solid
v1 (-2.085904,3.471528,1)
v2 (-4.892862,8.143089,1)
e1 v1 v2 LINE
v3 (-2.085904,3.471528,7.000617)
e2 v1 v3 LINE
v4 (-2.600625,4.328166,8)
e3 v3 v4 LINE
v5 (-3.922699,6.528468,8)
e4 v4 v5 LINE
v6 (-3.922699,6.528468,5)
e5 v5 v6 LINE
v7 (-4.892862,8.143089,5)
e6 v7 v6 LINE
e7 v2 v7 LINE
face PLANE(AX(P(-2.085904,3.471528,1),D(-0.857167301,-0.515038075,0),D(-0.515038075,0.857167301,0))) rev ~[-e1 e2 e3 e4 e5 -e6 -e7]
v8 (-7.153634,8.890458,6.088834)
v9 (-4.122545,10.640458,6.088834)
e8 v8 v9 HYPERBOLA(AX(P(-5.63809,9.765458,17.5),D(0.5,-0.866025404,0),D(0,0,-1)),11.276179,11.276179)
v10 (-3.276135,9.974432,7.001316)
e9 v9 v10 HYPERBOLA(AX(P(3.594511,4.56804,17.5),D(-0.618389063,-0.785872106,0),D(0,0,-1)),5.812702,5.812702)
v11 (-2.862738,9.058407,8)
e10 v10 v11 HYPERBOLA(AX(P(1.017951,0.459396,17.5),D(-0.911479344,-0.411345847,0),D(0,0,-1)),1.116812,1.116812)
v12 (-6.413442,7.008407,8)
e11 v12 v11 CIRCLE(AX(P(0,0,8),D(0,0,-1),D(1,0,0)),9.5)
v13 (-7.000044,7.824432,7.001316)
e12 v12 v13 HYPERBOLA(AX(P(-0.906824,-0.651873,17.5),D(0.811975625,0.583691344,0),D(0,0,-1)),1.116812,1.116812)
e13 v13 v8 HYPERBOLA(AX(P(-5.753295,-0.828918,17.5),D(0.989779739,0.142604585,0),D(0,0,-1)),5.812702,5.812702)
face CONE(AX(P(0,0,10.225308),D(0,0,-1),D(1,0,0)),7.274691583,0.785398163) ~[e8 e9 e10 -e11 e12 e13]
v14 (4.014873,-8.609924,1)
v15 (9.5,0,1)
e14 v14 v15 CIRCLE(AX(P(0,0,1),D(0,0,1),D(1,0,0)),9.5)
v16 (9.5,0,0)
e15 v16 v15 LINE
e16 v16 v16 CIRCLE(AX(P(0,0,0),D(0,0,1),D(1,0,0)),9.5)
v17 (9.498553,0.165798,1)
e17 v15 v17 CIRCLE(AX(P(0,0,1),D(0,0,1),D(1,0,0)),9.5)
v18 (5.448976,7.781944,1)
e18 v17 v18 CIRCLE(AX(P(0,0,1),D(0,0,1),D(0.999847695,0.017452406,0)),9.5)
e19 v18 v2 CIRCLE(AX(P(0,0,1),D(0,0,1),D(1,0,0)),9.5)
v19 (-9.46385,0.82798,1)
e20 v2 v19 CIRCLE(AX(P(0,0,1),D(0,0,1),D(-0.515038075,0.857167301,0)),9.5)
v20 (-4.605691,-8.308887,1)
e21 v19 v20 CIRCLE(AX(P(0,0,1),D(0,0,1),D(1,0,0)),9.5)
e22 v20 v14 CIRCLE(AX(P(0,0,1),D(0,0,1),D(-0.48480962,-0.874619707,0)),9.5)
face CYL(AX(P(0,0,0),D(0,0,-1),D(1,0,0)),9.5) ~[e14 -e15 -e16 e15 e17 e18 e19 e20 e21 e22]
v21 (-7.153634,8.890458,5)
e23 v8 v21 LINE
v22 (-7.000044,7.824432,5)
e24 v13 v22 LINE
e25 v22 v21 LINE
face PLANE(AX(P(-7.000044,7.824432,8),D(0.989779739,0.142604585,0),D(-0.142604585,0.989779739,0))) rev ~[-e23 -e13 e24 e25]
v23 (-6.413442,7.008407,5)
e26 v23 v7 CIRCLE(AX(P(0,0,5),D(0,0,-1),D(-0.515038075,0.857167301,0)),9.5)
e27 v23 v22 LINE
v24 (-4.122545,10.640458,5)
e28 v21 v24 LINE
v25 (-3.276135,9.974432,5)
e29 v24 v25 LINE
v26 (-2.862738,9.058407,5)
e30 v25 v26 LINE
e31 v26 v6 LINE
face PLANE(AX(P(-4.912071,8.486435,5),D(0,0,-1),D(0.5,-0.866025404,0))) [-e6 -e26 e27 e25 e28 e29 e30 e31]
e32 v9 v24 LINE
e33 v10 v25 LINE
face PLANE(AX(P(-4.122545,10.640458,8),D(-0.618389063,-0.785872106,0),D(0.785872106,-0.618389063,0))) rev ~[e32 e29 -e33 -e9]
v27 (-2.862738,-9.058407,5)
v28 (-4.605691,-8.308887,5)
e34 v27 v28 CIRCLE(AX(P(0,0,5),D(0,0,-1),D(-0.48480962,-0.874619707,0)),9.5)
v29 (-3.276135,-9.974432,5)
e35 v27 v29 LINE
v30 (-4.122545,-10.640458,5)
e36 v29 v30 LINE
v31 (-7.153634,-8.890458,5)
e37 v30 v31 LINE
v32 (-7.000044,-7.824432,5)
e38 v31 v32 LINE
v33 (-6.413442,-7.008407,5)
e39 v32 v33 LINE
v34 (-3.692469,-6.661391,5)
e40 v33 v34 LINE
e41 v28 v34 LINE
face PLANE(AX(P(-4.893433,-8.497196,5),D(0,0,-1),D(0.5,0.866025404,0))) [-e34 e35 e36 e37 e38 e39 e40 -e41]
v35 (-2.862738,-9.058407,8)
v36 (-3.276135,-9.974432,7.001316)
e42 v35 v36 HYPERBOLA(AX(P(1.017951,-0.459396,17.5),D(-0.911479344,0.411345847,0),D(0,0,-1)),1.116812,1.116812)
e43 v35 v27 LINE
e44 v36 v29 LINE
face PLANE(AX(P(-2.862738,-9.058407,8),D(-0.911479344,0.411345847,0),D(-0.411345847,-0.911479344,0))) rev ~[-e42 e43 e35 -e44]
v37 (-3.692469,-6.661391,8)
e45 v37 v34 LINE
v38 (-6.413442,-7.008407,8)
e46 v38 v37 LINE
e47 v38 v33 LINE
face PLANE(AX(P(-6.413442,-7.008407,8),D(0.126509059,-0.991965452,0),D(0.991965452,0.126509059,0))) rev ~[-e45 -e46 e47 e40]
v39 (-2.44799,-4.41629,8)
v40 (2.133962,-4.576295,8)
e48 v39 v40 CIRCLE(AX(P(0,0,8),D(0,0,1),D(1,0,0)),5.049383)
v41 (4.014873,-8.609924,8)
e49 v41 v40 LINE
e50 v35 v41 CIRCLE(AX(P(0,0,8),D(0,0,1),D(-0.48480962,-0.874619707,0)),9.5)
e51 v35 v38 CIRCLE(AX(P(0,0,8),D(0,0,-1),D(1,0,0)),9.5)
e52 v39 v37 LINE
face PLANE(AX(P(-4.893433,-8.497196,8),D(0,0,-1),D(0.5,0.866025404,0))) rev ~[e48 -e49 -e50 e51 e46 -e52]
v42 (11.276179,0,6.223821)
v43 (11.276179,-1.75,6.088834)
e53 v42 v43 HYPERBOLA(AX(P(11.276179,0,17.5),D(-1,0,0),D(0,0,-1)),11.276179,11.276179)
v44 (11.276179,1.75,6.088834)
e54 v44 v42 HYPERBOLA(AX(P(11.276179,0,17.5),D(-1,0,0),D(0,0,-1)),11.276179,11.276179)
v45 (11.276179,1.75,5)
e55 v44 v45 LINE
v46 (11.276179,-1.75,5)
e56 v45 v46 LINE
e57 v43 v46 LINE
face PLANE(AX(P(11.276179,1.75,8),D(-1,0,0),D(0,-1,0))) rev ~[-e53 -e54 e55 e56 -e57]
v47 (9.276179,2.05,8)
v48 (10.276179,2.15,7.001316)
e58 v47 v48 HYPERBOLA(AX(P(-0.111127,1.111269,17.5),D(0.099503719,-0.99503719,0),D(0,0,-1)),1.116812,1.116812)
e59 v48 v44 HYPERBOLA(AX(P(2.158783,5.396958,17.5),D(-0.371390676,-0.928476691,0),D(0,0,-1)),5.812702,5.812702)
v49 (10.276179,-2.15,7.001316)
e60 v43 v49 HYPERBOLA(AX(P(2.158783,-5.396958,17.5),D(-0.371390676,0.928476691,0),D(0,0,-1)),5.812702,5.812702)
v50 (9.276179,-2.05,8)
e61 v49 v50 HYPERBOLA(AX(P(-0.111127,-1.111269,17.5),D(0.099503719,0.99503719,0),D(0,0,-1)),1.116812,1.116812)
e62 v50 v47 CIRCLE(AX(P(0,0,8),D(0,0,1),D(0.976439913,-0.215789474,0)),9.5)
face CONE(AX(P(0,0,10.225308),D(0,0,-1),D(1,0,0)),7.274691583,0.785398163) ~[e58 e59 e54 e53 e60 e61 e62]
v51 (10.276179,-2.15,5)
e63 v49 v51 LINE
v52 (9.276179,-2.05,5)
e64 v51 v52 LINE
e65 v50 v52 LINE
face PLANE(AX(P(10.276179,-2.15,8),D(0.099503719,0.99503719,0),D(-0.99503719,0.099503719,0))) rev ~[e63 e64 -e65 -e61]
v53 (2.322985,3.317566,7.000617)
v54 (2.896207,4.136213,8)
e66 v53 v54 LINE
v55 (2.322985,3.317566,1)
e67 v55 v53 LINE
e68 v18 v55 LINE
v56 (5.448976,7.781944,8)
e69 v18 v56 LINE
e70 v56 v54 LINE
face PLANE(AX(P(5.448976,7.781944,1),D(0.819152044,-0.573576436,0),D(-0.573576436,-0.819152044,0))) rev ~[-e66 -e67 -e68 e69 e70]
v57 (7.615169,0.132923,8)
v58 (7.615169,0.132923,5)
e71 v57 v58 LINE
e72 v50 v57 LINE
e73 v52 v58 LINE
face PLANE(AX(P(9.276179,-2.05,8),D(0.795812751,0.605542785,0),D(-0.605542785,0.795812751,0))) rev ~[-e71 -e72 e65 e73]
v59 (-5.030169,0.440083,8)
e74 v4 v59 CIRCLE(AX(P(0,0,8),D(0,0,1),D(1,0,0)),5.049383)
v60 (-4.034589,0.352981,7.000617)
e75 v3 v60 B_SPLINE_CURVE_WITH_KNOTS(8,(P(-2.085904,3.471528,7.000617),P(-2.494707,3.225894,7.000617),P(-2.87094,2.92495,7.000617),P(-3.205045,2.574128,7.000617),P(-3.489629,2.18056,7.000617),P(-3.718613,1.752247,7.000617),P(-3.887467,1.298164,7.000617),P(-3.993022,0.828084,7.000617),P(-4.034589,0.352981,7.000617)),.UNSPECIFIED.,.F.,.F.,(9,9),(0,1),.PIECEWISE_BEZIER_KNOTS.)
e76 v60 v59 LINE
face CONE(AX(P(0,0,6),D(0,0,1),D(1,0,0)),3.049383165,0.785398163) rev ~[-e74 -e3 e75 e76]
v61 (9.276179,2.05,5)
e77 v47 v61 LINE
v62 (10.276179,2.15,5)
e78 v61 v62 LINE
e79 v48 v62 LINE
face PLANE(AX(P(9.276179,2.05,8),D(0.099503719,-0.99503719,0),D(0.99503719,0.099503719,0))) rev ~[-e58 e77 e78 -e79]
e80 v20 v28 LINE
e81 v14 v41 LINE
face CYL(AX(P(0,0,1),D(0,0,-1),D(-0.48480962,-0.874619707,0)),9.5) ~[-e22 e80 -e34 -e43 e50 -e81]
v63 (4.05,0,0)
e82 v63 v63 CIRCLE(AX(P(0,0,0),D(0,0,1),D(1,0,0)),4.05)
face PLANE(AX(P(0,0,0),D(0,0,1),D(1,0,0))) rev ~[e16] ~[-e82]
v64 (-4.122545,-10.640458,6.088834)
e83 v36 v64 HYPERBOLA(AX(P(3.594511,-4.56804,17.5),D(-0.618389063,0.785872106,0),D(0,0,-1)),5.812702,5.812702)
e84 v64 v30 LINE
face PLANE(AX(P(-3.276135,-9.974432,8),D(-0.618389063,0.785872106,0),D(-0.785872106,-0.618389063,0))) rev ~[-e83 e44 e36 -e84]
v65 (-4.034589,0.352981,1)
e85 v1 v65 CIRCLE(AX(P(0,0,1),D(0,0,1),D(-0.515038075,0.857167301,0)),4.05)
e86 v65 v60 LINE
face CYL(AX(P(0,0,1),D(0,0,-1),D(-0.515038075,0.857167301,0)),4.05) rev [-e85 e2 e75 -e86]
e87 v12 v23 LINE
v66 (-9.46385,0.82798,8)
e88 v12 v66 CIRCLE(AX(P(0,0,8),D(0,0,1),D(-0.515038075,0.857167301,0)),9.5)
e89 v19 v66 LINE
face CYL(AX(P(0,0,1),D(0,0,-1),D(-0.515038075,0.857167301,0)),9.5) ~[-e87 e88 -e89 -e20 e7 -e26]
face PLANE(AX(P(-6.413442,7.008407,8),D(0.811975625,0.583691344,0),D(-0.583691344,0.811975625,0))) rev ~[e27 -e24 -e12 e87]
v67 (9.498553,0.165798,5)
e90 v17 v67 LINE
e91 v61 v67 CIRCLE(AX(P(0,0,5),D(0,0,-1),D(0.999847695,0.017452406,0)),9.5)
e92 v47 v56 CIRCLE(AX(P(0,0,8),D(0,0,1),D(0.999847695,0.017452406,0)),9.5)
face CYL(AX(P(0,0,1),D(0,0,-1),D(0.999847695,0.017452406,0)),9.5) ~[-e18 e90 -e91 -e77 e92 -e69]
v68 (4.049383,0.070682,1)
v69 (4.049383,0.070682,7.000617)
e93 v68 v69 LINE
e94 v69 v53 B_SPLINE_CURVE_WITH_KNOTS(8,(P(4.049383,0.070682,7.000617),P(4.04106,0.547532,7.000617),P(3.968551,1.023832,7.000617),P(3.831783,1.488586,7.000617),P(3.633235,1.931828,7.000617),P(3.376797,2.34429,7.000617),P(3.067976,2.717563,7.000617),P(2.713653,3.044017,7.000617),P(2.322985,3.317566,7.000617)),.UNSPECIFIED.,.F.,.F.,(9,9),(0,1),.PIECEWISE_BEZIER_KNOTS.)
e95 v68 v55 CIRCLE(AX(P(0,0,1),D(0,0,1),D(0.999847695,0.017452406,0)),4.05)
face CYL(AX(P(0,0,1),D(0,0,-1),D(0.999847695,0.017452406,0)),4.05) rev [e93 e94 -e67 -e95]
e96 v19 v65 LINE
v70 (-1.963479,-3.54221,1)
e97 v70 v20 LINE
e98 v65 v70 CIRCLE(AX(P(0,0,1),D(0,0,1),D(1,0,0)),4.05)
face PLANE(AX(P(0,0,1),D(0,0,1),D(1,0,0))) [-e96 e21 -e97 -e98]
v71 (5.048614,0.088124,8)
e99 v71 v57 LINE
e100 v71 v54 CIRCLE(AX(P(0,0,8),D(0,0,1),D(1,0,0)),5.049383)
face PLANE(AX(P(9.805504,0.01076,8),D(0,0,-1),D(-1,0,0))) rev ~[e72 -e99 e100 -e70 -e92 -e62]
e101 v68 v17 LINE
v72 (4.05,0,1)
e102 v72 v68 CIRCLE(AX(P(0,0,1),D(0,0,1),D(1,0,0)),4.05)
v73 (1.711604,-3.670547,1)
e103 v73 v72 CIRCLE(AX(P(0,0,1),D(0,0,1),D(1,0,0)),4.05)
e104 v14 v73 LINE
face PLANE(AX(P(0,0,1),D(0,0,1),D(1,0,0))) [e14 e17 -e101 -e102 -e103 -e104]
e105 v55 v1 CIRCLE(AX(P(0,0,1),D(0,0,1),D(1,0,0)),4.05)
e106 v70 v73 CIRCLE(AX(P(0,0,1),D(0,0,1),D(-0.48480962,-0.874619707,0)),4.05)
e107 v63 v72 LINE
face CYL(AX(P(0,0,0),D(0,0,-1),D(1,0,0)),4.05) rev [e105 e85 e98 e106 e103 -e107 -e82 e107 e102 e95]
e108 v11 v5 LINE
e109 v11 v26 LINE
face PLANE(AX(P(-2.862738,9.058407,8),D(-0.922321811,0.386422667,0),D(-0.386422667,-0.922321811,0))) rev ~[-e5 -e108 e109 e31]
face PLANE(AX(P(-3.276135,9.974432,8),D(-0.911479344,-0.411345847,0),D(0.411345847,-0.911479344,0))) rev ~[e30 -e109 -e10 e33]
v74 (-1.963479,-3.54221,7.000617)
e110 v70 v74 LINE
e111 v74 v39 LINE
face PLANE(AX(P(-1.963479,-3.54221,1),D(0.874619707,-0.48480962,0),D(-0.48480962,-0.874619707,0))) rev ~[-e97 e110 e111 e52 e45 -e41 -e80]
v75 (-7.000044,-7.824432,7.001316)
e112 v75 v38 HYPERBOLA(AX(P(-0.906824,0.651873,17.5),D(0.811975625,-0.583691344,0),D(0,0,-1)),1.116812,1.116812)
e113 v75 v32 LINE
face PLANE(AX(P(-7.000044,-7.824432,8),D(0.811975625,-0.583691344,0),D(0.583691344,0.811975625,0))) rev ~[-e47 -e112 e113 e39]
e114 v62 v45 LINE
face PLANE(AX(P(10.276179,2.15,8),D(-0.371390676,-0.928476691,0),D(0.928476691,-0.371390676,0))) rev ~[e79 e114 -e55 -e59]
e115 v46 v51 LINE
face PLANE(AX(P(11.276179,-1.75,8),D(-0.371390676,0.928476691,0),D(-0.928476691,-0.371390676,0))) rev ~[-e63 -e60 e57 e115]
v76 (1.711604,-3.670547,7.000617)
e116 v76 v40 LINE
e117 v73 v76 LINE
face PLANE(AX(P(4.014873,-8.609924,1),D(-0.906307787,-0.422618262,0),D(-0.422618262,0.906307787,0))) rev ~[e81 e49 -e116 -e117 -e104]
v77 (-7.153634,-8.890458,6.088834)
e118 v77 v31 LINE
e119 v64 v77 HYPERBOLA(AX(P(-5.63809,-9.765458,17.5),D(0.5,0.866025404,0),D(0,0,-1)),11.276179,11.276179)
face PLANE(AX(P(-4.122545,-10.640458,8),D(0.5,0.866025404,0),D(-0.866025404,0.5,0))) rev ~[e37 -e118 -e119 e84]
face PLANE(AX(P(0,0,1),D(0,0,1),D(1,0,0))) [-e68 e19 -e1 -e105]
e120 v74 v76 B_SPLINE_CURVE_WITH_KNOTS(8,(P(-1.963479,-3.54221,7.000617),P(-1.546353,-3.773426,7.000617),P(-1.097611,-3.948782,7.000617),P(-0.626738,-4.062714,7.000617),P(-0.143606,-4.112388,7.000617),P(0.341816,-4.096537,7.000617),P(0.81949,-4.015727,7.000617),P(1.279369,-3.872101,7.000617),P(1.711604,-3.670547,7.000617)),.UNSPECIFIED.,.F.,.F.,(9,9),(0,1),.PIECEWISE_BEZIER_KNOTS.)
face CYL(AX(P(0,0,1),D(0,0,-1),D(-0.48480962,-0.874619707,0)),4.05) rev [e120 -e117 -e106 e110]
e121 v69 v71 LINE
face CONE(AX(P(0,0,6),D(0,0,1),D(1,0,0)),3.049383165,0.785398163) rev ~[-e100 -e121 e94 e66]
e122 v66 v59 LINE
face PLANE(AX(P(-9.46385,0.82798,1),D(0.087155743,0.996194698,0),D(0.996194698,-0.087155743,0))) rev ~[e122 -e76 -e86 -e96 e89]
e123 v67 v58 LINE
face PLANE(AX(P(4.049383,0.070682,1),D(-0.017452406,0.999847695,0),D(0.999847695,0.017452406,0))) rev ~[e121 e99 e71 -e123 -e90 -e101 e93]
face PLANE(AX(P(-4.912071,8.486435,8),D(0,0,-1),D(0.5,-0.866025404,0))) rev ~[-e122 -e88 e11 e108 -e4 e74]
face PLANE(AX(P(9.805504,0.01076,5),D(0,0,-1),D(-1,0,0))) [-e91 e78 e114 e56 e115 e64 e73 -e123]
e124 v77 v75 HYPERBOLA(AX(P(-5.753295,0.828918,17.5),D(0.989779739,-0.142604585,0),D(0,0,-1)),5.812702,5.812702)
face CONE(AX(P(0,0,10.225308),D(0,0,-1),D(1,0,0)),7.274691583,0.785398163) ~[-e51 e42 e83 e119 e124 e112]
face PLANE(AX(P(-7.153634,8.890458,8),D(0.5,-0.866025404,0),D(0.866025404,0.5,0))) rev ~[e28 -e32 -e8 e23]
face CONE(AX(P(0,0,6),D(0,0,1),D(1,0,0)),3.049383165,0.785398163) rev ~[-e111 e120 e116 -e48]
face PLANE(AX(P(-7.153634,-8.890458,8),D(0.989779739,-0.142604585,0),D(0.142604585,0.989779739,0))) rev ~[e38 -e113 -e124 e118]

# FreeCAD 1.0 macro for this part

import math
import FreeCAD as App
import Part
import Sketcher

V = App.Vector
Q = App.Units.Quantity


def add_polygon(sketch, points):
    """Adds a closed chain of lines whose ends are joined by coincident constraints."""
    first, n = sketch.GeometryCount, len(points)
    for a, b in zip(points, points[1:] + points[:1]):
        sketch.addGeometry(Part.LineSegment(App.Vector(*a, 0), App.Vector(*b, 0)), False)
    for i in range(n):
        sketch.addConstraint(Sketcher.Constraint("Coincident", first + i, 2, first + (i + 1) % n, 1))

doc = App.newDocument("Part")
params = doc.addObject("Spreadsheet::Sheet", "Params")
for row, (alias, value) in enumerate([
    ("sketch1_diameter", "19 mm"),
    ("sketch1_diameter2", "8.1 mm"),
    ("pad1_length", "1 mm"),
    ("sketch2_radius", "9.5 mm"),
    ("sketch2_radius2", "4.05 mm"),
    ("pad2_length", "7 mm"),
    ("sketch3_height", "3.5 mm"),
    ("pad3_length", "3 mm"),
    ("groove_angle", "360 deg"),
], start=1):
    params.set(f"A{row}", alias)
    params.set(f"B{row}", "=" + value)
    params.setAlias(f"B{row}", alias)

body = doc.addObject("PartDesign::Body", "Body")

sketch1 = body.newObject("Sketcher::SketchObject", "Sketch")
sketch1.AttachmentSupport = (doc.getObject("XY_Plane"), [""])
sketch1.MapMode = "FlatFace"
sketch1.addGeometry(Part.Circle(V(0, 0, 0), V(0, 0, 1), 9.5), False)
sketch1.addGeometry(Part.Circle(V(0, 0, 0), V(0, 0, 1), 4), False)
sketch1.addConstraint(Sketcher.Constraint("Coincident", 0, 3, -1, 1))
sketch1.addConstraint(Sketcher.Constraint("Coincident", 1, 3, -1, 1))
sketch1.addConstraint(Sketcher.Constraint("Diameter", 0, Q("19 mm")))
sketch1.addConstraint(Sketcher.Constraint("Diameter", 1, Q("8.1 mm")))
sketch1.setExpression("Constraints[2]", "Params.sketch1_diameter")
sketch1.setExpression("Constraints[3]", "Params.sketch1_diameter2")
pad1 = body.newObject("PartDesign::Pad", "Pad")
pad1.Profile = sketch1
pad1.setExpression("Length", "Params.pad1_length")

sketch2 = body.newObject("Sketcher::SketchObject", "Sketch001")
sketch2.AttachmentSupport = (doc.getObject("XY_Plane"), [""])
sketch2.MapMode = "FlatFace"
sketch2.AttachmentOffset = App.Placement(V(0, 0, 1), App.Rotation())
sketch2.addGeometry(Part.ArcOfCircle(Part.Circle(V(0, 0, 0), V(0, 0, 1), 4), math.radians(1), math.radians(55)), False)
sketch2.addGeometry(Part.LineSegment(V(4, 0.1, 0), V(9.5, 0.2, 0)), False)
sketch2.addGeometry(Part.ArcOfCircle(Part.Circle(V(0, 0, 0), V(0, 0, 1), 9.5), math.radians(1), math.radians(55)), False)
sketch2.addGeometry(Part.LineSegment(V(5.4, 7.8, 0), V(2.3, 3.3, 0)), False)
sketch2.addConstraint(Sketcher.Constraint("Coincident", 0, 1, 1, 1))
sketch2.addConstraint(Sketcher.Constraint("Coincident", 1, 2, 2, 1))
sketch2.addConstraint(Sketcher.Constraint("Coincident", 2, 2, 3, 1))
sketch2.addConstraint(Sketcher.Constraint("Coincident", 3, 2, 0, 2))
sketch2.addConstraint(Sketcher.Constraint("Coincident", 0, 3, -1, 1))
sketch2.addConstraint(Sketcher.Constraint("Coincident", 2, 3, -1, 1))
sketch2.addConstraint(Sketcher.Constraint("Radius", 2, Q("9.5 mm")))
sketch2.addConstraint(Sketcher.Constraint("Angle", 1, Q("1 deg")))
sketch2.addConstraint(Sketcher.Constraint("Angle", 3, Q("-125 deg")))
sketch2.addConstraint(Sketcher.Constraint("Radius", 0, Q("4.05 mm")))
sketch2.addConstraint(Sketcher.Constraint("DistanceX", 3, 2, 0, 1, Q("1.726399 mm")))
sketch2.addConstraint(Sketcher.Constraint("DistanceX", -1, 1, 0, 1, Q("4.049383 mm")))
sketch2.setExpression("Constraints[6]", "Params.sketch2_radius")
sketch2.setExpression("Constraints[9]", "Params.sketch2_radius2")
pad2 = body.newObject("PartDesign::Pad", "Pad001")
pad2.Profile = sketch2
pad2.setExpression("Length", "Params.pad2_length")

sketch3 = body.newObject("Sketcher::SketchObject", "Sketch002")
sketch3.AttachmentSupport = (doc.getObject("XY_Plane"), [""])
sketch3.MapMode = "FlatFace"
sketch3.AttachmentOffset = App.Placement(V(0, 0, 8), App.Rotation())
add_polygon(sketch3, [(10.3, 2.1), (9.3, 2), (7.6, 0.1), (9.3, -2), (10.3, -2.1), (11.3, -1.8), (11.3, 1.8)])
sketch3.addConstraint(Sketcher.Constraint("Vertical", 5))
sketch3.addConstraint(Sketcher.Constraint("Symmetric", 0, 2, 2, 2, -1))
sketch3.addConstraint(Sketcher.Constraint("Symmetric", 3, 2, 6, 2, -1))
sketch3.addConstraint(Sketcher.Constraint("Equal", 4, 6))
sketch3.addConstraint(Sketcher.Constraint("DistanceY", 5, 1, 5, 2, Q("3.5 mm")))
sketch3.addConstraint(Sketcher.Constraint("DistanceX", 2, 2, 3, 2, Q("1 mm")))
sketch3.addConstraint(Sketcher.Constraint("DistanceX", 3, 2, 4, 2, Q("1 mm")))
sketch3.addConstraint(Sketcher.Constraint("DistanceY", 2, 2, 0, 2, Q("4.1 mm")))
sketch3.addConstraint(Sketcher.Constraint("DistanceY", 3, 2, 2, 2, Q("0.1 mm")))
sketch3.addConstraint(Sketcher.Constraint("Distance", 1, Q("2.536561 mm")))
sketch3.addConstraint(Sketcher.Constraint("Distance", 2, Q("2.743011 mm")))
sketch3.addConstraint(Sketcher.Constraint("DistanceX", -1, 1, 0, 2, Q("9.276179 mm")))
sketch3.setExpression("Constraints[11]", "Params.sketch3_height")
pad3 = body.newObject("PartDesign::Pad", "Pad002")
pad3.Profile = sketch3
pad3.setExpression("Length", "Params.pad3_length")
pad3.Reversed = True
doc.recompute()

polarpattern = body.newObject("PartDesign::PolarPattern", "PolarPattern")
polarpattern.Originals = [pad2, pad3]
polarpattern.Axis = (doc.getObject("Z_Axis"), [""])
polarpattern.Angle = 360
polarpattern.Occurrences = 3
body.Tip = polarpattern

sketch4 = body.newObject("Sketcher::SketchObject", "Sketch003")
sketch4.AttachmentSupport = (doc.getObject("XZ_Plane"), [""])
sketch4.MapMode = "FlatFace"
add_polygon(sketch4, [(3, 11), (3, 6), (7, 10), (12, 5), (12, 11)])
sketch4.addConstraint(Sketcher.Constraint("Vertical", 0))
sketch4.addConstraint(Sketcher.Constraint("Vertical", 3))
sketch4.addConstraint(Sketcher.Constraint("Horizontal", 4))
sketch4.addConstraint(Sketcher.Constraint("Perpendicular", 1, 2))
sketch4.addConstraint(Sketcher.Constraint("Angle", 1, Q("45 deg")))
sketch4.addConstraint(Sketcher.Constraint("DistanceY", -1, 1, 0, 2, Q("6 mm")))
sketch4.addConstraint(Sketcher.Constraint("DistanceY", 1, 2, 3, 2, Q("1 mm")))
sketch4.addConstraint(Sketcher.Constraint("DistanceY", 0, 2, 0, 1, Q("5.225308 mm")))
sketch4.addConstraint(Sketcher.Constraint("Distance", 2, Q("7.073172 mm")))
sketch4.addConstraint(Sketcher.Constraint("DistanceX", -1, 1, 1, 2, Q("7.274692 mm")))
groove = body.newObject("PartDesign::Groove", "Groove")
groove.Profile = sketch4
groove.ReferenceAxis = (sketch4, ["V_Axis"])
groove.setExpression("Angle", "Params.groove_angle")

doc.recompute()
